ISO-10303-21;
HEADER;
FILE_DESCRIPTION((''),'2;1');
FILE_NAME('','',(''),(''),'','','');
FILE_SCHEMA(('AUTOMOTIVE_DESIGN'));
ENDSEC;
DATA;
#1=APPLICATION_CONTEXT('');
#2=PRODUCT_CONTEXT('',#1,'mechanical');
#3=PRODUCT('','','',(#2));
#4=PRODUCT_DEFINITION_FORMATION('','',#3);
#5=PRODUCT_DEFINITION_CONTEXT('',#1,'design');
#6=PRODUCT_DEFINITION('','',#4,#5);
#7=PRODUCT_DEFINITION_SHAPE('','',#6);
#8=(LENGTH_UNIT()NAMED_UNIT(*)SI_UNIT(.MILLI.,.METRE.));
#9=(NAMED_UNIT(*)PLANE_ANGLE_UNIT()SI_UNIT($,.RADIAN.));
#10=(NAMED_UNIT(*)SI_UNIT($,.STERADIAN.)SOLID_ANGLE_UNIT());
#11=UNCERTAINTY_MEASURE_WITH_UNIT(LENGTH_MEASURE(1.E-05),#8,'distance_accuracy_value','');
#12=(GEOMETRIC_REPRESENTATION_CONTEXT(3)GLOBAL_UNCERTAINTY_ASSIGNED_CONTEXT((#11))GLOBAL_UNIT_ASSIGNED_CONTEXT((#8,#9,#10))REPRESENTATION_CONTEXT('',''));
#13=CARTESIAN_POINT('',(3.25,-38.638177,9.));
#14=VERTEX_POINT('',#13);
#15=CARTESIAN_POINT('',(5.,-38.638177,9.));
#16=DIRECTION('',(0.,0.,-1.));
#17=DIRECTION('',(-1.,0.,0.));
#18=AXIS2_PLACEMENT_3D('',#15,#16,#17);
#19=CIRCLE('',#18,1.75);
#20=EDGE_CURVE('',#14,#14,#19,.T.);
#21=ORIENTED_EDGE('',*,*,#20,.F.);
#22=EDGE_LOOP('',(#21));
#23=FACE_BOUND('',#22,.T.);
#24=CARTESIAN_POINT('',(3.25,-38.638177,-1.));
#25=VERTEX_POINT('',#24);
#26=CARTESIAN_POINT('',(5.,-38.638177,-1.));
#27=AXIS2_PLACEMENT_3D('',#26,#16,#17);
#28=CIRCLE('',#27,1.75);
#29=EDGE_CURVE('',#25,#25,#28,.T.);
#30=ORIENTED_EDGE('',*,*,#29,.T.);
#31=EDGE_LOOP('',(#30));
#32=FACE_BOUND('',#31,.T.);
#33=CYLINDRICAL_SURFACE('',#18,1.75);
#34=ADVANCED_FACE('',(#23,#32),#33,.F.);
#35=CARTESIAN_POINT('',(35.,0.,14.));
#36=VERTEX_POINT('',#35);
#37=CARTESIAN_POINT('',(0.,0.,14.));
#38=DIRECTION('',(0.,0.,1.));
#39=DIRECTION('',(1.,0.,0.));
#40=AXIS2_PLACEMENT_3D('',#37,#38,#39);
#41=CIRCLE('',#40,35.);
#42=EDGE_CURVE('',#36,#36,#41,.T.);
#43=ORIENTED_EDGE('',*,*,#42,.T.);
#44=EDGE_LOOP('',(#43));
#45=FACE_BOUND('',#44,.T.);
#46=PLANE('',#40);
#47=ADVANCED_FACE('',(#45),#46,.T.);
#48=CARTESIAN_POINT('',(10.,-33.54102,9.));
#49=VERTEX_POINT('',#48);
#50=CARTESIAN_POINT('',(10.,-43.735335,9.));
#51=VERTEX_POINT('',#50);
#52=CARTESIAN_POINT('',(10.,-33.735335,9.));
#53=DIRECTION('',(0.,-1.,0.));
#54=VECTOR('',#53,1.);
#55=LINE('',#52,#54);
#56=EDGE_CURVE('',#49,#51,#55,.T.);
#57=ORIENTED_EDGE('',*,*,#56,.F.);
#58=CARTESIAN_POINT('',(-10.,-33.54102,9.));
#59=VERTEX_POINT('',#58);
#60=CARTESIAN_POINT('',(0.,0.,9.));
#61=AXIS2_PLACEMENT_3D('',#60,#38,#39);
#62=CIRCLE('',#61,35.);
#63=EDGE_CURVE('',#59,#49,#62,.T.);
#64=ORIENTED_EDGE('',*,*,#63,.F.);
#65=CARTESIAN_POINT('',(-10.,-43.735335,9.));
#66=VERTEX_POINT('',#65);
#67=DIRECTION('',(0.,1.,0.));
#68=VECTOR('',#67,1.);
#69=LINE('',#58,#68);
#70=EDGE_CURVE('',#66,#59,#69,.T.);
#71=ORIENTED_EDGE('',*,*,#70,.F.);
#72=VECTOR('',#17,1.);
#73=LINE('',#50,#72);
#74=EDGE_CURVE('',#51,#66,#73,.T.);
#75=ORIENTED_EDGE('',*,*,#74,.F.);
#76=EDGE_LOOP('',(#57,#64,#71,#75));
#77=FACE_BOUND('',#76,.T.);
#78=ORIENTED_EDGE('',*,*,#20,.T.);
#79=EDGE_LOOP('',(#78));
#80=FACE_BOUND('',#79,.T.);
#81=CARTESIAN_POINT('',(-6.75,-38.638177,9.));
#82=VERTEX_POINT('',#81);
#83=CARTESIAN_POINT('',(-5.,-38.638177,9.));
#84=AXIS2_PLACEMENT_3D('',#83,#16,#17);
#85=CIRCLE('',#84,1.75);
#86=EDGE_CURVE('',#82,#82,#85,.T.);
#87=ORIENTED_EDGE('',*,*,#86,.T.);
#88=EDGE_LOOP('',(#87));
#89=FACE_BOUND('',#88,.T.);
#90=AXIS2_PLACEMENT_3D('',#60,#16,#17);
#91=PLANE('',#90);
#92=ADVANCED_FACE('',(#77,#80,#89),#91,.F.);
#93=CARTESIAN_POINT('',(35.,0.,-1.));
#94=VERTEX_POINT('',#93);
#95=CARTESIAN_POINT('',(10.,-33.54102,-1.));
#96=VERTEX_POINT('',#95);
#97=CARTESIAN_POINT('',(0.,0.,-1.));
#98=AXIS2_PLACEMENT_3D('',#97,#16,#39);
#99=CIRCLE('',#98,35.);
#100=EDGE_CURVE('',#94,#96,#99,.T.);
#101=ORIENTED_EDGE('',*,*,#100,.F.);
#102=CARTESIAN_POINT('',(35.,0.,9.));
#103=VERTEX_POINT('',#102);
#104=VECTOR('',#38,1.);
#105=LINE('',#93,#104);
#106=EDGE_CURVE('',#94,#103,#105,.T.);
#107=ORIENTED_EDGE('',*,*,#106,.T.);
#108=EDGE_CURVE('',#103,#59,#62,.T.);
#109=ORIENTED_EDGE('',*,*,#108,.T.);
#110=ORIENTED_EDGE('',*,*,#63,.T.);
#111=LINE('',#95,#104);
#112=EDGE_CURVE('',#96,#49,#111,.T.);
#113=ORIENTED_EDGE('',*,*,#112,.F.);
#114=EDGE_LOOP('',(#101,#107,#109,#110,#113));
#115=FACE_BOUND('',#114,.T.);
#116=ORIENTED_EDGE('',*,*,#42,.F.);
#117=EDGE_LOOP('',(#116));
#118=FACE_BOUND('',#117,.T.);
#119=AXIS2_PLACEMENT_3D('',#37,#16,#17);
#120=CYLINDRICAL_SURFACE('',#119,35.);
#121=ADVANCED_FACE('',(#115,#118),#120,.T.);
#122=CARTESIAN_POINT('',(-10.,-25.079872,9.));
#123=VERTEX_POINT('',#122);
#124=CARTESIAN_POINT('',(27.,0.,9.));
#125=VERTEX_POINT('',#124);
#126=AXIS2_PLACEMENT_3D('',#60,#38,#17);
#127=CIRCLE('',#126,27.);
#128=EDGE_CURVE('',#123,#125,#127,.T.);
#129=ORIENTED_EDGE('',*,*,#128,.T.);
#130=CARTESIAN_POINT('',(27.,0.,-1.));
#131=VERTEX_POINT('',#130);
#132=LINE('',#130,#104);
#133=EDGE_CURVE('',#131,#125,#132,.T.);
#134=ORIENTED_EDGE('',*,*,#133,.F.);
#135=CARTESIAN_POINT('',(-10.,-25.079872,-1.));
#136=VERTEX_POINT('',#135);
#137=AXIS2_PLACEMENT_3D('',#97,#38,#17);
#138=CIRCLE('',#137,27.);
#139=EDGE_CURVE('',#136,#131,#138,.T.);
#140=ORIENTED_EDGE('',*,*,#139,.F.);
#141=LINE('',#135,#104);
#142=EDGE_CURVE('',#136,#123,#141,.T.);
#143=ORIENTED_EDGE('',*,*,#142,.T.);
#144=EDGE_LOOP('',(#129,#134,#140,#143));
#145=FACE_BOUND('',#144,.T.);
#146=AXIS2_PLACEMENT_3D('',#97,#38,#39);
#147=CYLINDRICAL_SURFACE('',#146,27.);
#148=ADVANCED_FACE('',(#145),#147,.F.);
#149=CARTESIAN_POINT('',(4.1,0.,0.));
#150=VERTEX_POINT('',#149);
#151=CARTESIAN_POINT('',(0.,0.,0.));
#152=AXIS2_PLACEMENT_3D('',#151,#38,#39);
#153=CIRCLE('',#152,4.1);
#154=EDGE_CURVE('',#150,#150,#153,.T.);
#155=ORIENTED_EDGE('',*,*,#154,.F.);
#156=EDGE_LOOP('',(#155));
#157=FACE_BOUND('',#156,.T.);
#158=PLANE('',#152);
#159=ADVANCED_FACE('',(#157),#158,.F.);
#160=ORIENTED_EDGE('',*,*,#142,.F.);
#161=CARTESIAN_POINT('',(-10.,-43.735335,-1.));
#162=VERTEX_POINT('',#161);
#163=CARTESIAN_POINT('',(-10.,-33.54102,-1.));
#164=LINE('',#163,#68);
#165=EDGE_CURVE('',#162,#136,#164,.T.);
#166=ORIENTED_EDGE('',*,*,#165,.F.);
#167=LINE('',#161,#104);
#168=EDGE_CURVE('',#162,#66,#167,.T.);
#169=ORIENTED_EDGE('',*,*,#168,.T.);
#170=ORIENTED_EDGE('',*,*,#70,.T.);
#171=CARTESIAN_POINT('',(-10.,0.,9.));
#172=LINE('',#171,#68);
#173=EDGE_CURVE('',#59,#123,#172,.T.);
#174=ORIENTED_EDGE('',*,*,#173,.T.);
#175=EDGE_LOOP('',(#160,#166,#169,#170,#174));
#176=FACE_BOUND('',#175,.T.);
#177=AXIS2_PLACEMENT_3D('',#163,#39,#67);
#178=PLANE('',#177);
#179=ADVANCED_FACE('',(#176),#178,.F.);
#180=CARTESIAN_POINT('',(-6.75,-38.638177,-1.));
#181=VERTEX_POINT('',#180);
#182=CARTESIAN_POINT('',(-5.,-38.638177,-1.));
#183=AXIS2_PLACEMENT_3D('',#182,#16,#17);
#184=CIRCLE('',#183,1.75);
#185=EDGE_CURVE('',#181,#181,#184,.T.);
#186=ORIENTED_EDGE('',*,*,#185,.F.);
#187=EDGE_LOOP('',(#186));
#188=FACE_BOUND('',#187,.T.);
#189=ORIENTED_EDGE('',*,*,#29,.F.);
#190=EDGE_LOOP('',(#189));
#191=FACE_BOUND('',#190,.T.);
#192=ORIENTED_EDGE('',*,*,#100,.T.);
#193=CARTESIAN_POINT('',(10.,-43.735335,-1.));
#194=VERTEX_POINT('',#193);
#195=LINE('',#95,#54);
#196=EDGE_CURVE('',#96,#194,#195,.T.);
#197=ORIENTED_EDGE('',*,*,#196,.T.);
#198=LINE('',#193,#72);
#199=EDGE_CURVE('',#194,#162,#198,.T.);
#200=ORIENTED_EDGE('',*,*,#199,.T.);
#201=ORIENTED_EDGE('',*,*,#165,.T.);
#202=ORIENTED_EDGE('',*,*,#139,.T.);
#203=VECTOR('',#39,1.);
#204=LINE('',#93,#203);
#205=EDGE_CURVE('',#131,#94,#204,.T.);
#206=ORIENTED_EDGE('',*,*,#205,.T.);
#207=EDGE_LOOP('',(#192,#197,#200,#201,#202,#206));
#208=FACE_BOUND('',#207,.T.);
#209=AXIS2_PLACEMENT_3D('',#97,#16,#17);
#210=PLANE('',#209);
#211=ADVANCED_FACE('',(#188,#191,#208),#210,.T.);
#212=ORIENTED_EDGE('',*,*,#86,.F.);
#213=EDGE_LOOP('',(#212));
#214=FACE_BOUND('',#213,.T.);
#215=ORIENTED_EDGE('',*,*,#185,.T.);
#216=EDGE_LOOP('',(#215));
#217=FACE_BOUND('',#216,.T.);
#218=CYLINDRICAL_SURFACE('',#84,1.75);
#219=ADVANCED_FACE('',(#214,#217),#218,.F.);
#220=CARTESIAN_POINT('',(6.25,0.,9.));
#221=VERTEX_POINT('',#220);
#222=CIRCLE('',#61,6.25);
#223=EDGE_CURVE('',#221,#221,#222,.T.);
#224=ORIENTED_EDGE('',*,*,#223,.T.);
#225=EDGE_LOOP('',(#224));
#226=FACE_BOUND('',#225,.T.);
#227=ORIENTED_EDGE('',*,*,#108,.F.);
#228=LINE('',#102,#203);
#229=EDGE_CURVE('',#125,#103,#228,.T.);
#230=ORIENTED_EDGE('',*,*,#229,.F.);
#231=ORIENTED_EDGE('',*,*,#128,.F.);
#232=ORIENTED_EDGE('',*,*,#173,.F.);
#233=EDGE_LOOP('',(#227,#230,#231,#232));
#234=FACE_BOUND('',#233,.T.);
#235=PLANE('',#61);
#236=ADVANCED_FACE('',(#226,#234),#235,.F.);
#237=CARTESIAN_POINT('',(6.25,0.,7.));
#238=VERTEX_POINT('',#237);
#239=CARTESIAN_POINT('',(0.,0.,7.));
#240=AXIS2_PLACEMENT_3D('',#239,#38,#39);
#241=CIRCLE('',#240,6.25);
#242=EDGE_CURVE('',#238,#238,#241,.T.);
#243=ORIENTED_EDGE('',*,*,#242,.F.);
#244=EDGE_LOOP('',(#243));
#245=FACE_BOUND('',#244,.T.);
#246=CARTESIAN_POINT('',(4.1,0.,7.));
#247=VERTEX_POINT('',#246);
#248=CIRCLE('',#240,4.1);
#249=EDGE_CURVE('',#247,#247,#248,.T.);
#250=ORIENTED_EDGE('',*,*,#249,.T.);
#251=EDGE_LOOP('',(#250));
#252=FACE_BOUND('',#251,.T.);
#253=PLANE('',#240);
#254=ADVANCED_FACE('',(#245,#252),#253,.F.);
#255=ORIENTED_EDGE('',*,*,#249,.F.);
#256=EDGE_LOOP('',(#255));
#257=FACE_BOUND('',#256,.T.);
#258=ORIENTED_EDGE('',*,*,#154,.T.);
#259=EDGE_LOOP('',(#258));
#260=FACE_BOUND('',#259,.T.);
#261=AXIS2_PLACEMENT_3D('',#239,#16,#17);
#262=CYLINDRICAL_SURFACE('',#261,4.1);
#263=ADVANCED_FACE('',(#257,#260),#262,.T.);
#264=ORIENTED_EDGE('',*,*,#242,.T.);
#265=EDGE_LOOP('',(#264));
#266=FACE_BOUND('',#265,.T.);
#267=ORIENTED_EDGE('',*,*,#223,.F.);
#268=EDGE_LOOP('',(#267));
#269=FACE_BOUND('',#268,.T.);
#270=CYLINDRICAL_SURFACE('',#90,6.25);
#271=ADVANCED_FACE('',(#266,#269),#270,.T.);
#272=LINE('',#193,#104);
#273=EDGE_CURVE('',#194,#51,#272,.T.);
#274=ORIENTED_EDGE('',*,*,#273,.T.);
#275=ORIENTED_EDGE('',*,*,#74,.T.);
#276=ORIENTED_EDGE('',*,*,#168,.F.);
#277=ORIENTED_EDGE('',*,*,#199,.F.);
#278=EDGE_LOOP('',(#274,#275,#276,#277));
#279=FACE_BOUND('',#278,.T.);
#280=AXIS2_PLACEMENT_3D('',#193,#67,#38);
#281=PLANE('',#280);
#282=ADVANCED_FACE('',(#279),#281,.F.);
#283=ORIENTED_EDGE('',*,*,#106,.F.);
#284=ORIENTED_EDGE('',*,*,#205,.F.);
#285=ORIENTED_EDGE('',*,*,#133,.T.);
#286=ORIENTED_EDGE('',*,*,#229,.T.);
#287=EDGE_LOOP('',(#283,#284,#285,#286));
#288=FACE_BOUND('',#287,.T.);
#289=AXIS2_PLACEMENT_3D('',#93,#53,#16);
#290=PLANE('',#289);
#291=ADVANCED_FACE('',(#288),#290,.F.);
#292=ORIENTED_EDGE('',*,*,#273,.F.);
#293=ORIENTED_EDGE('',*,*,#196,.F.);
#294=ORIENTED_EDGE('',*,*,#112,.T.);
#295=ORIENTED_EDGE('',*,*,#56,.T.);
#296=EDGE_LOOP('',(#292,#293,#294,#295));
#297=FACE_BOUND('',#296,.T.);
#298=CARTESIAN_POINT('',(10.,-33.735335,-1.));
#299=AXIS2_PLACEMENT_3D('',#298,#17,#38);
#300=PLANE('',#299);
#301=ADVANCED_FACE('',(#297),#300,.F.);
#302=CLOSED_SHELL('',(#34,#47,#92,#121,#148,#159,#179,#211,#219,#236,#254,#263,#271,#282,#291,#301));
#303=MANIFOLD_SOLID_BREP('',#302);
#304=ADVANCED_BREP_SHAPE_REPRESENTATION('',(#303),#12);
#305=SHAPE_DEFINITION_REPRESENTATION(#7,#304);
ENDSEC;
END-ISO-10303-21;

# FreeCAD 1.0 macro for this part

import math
import FreeCAD as App
import Part
import Sketcher

V = App.Vector
Q = App.Units.Quantity


def edges_at(feature, points):
    """Names of the edges that pass closest to the given points."""
    edges = feature.Shape.Edges
    near = lambda p: min(range(len(edges)), key=lambda i: edges[i].distToShape(Part.Vertex(*p))[0])
    return sorted({f"Edge{near(p) + 1}" for p in points})

doc = App.newDocument("Part")
params = doc.addObject("Spreadsheet::Sheet", "Params")
for row, (alias, value) in enumerate([
    ("sketch1_diameter", "8.2 mm"),
    ("pad1_length", "7 mm"),
    ("sketch2_diameter", "12.5 mm"),
    ("pad2_length", "2 mm"),
    ("sketch3_diameter", "70 mm"),
    ("pad3_length", "5 mm"),
    ("sketch4_diameter", "50 mm"),
    ("pad4_length", "5 mm"),
    ("sketch5_diameter", "60 mm"),
    ("pad5_length", "2 mm"),
    ("fillet_radius", "2 mm"),
    ("fillet2_radius", "2 mm"),
    ("sketch6_diameter", "3 mm"),
    ("sketch7_radius", "27 mm"),
    ("sketch7_radius2", "35 mm"),
    ("sketch7_width", "20 mm"),
    ("pad6_length", "10 mm"),
    ("sketch8_diameter", "3.5 mm"),
    ("pocket2_length", "10 mm"),
    ("pocket3_length", "40 mm"),
], start=1):
    params.set(f"A{row}", alias)
    params.set(f"B{row}", "=" + value)
    params.setAlias(f"B{row}", alias)

body = doc.addObject("PartDesign::Body", "Body")

sketch1 = body.newObject("Sketcher::SketchObject", "Sketch")
sketch1.AttachmentSupport = (doc.getObject("XY_Plane"), [""])
sketch1.MapMode = "FlatFace"
sketch1.addGeometry(Part.Circle(V(0, 0, 0), V(0, 0, 1), 4.1), False)
sketch1.addConstraint(Sketcher.Constraint("Coincident", 0, 3, -1, 1))
sketch1.addConstraint(Sketcher.Constraint("Diameter", 0, Q("8.2 mm")))
sketch1.setExpression("Constraints[1]", "Params.sketch1_diameter")
pad1 = body.newObject("PartDesign::Pad", "Pad")
pad1.Profile = sketch1
pad1.setExpression("Length", "Params.pad1_length")

sketch2 = body.newObject("Sketcher::SketchObject", "Sketch001")
sketch2.AttachmentSupport = (doc.getObject("XY_Plane"), [""])
sketch2.MapMode = "FlatFace"
sketch2.AttachmentOffset = App.Placement(V(0, 0, 7), App.Rotation())
sketch2.addGeometry(Part.Circle(V(0, 0, 0), V(0, 0, 1), 6), False)
sketch2.addConstraint(Sketcher.Constraint("Coincident", 0, 3, -1, 1))
sketch2.addConstraint(Sketcher.Constraint("Diameter", 0, Q("12.5 mm")))
sketch2.setExpression("Constraints[1]", "Params.sketch2_diameter")
pad2 = body.newObject("PartDesign::Pad", "Pad001")
pad2.Profile = sketch2
pad2.setExpression("Length", "Params.pad2_length")

sketch3 = body.newObject("Sketcher::SketchObject", "Sketch002")
sketch3.AttachmentSupport = (doc.getObject("XY_Plane"), [""])
sketch3.MapMode = "FlatFace"
sketch3.AttachmentOffset = App.Placement(V(0, 0, 9), App.Rotation())
sketch3.addGeometry(Part.Circle(V(0, 0, 0), V(0, 0, 1), 35), False)
sketch3.addConstraint(Sketcher.Constraint("Coincident", 0, 3, -1, 1))
sketch3.addConstraint(Sketcher.Constraint("Diameter", 0, Q("70 mm")))
sketch3.setExpression("Constraints[1]", "Params.sketch3_diameter")
pad3 = body.newObject("PartDesign::Pad", "Pad002")
pad3.Profile = sketch3
pad3.setExpression("Length", "Params.pad3_length")

sketch4 = body.newObject("Sketcher::SketchObject", "Sketch003")
sketch4.AttachmentSupport = (doc.getObject("XY_Plane"), [""])
sketch4.MapMode = "FlatFace"
sketch4.AttachmentOffset = App.Placement(V(0, 0, 14), App.Rotation())
sketch4.addGeometry(Part.Circle(V(0, 0, 0), V(0, 0, 1), 25), False)
sketch4.addConstraint(Sketcher.Constraint("Coincident", 0, 3, -1, 1))
sketch4.addConstraint(Sketcher.Constraint("Diameter", 0, Q("50 mm")))
sketch4.setExpression("Constraints[1]", "Params.sketch4_diameter")
pad4 = body.newObject("PartDesign::Pad", "Pad003")
pad4.Profile = sketch4
pad4.setExpression("Length", "Params.pad4_length")

sketch5 = body.newObject("Sketcher::SketchObject", "Sketch004")
sketch5.AttachmentSupport = (doc.getObject("XY_Plane"), [""])
sketch5.MapMode = "FlatFace"
sketch5.AttachmentOffset = App.Placement(V(0, 0, 19), App.Rotation())
sketch5.addGeometry(Part.Circle(V(0, 0, 0), V(0, 0, 1), 30), False)
sketch5.addConstraint(Sketcher.Constraint("Coincident", 0, 3, -1, 1))
sketch5.addConstraint(Sketcher.Constraint("Diameter", 0, Q("60 mm")))
sketch5.setExpression("Constraints[1]", "Params.sketch5_diameter")
pad5 = body.newObject("PartDesign::Pad", "Pad004")
pad5.Profile = sketch5
pad5.setExpression("Length", "Params.pad5_length")
doc.recompute()

fillet = body.newObject("PartDesign::Fillet", "Fillet")
fillet.Base = (pad5, edges_at(pad5, [(-25, 0, 19)]))
fillet.setExpression("Radius", "Params.fillet_radius")
doc.recompute()

fillet2 = body.newObject("PartDesign::Fillet", "Fillet001")
fillet2.Base = (fillet, edges_at(fillet, [(-25, 0, 14)]))
fillet2.setExpression("Radius", "Params.fillet2_radius")

sketch6 = body.newObject("Sketcher::SketchObject", "Sketch005")
sketch6.AttachmentSupport = (doc.getObject("XZ_Plane"), [""])
sketch6.MapMode = "FlatFace"
sketch6.addGeometry(Part.Circle(V(0, 16.5, 0), V(0, 0, 1), 1.5), False)
sketch6.addConstraint(Sketcher.Constraint("Diameter", 0, Q("3 mm")))
sketch6.addConstraint(Sketcher.Constraint("DistanceY", -1, 1, 0, 3, Q("16.5 mm")))
sketch6.addConstraint(Sketcher.Constraint("DistanceX", -1, 1, 0, 3, Q("0.008646 mm")))
sketch6.setExpression("Constraints[0]", "Params.sketch6_diameter")
pocket1 = body.newObject("PartDesign::Pocket", "Pocket")
pocket1.Profile = sketch6
pocket1.Type = "ThroughAll"
pocket1.Midplane = True

sketch7 = body.newObject("Sketcher::SketchObject", "Sketch006")
sketch7.AttachmentSupport = (doc.getObject("XY_Plane"), [""])
sketch7.MapMode = "FlatFace"
sketch7.AttachmentOffset = App.Placement(V(0, 0, 9), App.Rotation())
sketch7.addGeometry(Part.LineSegment(V(10, -44, 0), V(-10, -44, 0)), False)
sketch7.addGeometry(Part.LineSegment(V(-10, -44, 0), V(-10, -25, 0)), False)
sketch7.addGeometry(Part.ArcOfCircle(Part.Circle(V(0, 0, 0), V(0, 0, 1), 27), math.radians(-112), math.radians(0)), False)
sketch7.addGeometry(Part.LineSegment(V(27, 0, 0), V(35, 0, 0)), False)
sketch7.addGeometry(Part.ArcOfCircle(Part.Circle(V(0, 0, 0), V(0, 0, 1), 35), math.radians(-73), math.radians(0)), False)
sketch7.addGeometry(Part.LineSegment(V(10, -34, 0), V(10, -44, 0)), False)
sketch7.addConstraint(Sketcher.Constraint("Coincident", 0, 2, 1, 1))
sketch7.addConstraint(Sketcher.Constraint("Coincident", 1, 2, 2, 1))
sketch7.addConstraint(Sketcher.Constraint("Coincident", 2, 2, 3, 1))
sketch7.addConstraint(Sketcher.Constraint("Coincident", 3, 2, 4, 2))
sketch7.addConstraint(Sketcher.Constraint("Coincident", 4, 1, 5, 1))
sketch7.addConstraint(Sketcher.Constraint("Coincident", 5, 2, 0, 1))
sketch7.addConstraint(Sketcher.Constraint("Horizontal", 0))
sketch7.addConstraint(Sketcher.Constraint("Vertical", 1))
sketch7.addConstraint(Sketcher.Constraint("Horizontal", 3))
sketch7.addConstraint(Sketcher.Constraint("Vertical", 5))
sketch7.addConstraint(Sketcher.Constraint("Coincident", 2, 3, -1, 1))
sketch7.addConstraint(Sketcher.Constraint("Coincident", 4, 3, -1, 1))
sketch7.addConstraint(Sketcher.Constraint("PointOnObject", 2, 2, -1))
sketch7.addConstraint(Sketcher.Constraint("Radius", 2, Q("27 mm")))
sketch7.addConstraint(Sketcher.Constraint("Radius", 4, Q("35 mm")))
sketch7.addConstraint(Sketcher.Constraint("DistanceX", 0, 2, 0, 1, Q("20 mm")))
sketch7.addConstraint(Sketcher.Constraint("DistanceX", 0, 2, -1, 1, Q("10 mm")))
sketch7.addConstraint(Sketcher.Constraint("DistanceY", 1, 1, 1, 2, Q("18.655462 mm")))
sketch7.setExpression("Constraints[13]", "Params.sketch7_radius")
sketch7.setExpression("Constraints[14]", "Params.sketch7_radius2")
sketch7.setExpression("Constraints[15]", "Params.sketch7_width")
pad6 = body.newObject("PartDesign::Pad", "Pad005")
pad6.Profile = sketch7
pad6.setExpression("Length", "Params.pad6_length")
pad6.Reversed = True

sketch8 = body.newObject("Sketcher::SketchObject", "Sketch007")
sketch8.AttachmentSupport = (doc.getObject("XY_Plane"), [""])
sketch8.MapMode = "FlatFace"
sketch8.AttachmentOffset = App.Placement(V(0, 0, -1), App.Rotation())
sketch8.addGeometry(Part.Circle(V(-5, -38.6, 0), V(0, 0, 1), 1.8), False)
sketch8.addGeometry(Part.Circle(V(5, -38.6, 0), V(0, 0, 1), 1.8), False)
sketch8.addConstraint(Sketcher.Constraint("Equal", 0, 1))
sketch8.addConstraint(Sketcher.Constraint("Symmetric", 0, 3, 1, 3, -2))
sketch8.addConstraint(Sketcher.Constraint("Diameter", 0, Q("3.5 mm")))
sketch8.addConstraint(Sketcher.Constraint("DistanceX", 0, 3, -1, 1, Q("5 mm")))
sketch8.addConstraint(Sketcher.Constraint("DistanceY", 0, 3, -1, 1, Q("38.638177 mm")))
sketch8.setExpression("Constraints[2]", "Params.sketch8_diameter")
pocket2 = body.newObject("PartDesign::Pocket", "Pocket001")
pocket2.Profile = sketch8
pocket2.setExpression("Length", "Params.pocket2_length")
pocket2.Reversed = True

sketch9 = body.newObject("Sketcher::SketchObject", "Sketch008")
sketch9.AttachmentSupport = (doc.getObject("XY_Plane"), [""])
sketch9.MapMode = "FlatFace"
sketch9.AttachmentOffset = App.Placement(V(0, 0, 14), App.Rotation())
sketch9.addGeometry(Part.Circle(V(0, 0, 0), V(0, 0, 1), 53), False)
sketch9.addConstraint(Sketcher.Constraint("Coincident", 0, 3, -1, 1))
sketch9.addConstraint(Sketcher.Constraint("Diameter", 0, Q("105.019422 mm")))
pocket3 = body.newObject("PartDesign::Pocket", "Pocket002")
pocket3.Profile = sketch9
pocket3.setExpression("Length", "Params.pocket3_length")
pocket3.Reversed = True

doc.recompute()
